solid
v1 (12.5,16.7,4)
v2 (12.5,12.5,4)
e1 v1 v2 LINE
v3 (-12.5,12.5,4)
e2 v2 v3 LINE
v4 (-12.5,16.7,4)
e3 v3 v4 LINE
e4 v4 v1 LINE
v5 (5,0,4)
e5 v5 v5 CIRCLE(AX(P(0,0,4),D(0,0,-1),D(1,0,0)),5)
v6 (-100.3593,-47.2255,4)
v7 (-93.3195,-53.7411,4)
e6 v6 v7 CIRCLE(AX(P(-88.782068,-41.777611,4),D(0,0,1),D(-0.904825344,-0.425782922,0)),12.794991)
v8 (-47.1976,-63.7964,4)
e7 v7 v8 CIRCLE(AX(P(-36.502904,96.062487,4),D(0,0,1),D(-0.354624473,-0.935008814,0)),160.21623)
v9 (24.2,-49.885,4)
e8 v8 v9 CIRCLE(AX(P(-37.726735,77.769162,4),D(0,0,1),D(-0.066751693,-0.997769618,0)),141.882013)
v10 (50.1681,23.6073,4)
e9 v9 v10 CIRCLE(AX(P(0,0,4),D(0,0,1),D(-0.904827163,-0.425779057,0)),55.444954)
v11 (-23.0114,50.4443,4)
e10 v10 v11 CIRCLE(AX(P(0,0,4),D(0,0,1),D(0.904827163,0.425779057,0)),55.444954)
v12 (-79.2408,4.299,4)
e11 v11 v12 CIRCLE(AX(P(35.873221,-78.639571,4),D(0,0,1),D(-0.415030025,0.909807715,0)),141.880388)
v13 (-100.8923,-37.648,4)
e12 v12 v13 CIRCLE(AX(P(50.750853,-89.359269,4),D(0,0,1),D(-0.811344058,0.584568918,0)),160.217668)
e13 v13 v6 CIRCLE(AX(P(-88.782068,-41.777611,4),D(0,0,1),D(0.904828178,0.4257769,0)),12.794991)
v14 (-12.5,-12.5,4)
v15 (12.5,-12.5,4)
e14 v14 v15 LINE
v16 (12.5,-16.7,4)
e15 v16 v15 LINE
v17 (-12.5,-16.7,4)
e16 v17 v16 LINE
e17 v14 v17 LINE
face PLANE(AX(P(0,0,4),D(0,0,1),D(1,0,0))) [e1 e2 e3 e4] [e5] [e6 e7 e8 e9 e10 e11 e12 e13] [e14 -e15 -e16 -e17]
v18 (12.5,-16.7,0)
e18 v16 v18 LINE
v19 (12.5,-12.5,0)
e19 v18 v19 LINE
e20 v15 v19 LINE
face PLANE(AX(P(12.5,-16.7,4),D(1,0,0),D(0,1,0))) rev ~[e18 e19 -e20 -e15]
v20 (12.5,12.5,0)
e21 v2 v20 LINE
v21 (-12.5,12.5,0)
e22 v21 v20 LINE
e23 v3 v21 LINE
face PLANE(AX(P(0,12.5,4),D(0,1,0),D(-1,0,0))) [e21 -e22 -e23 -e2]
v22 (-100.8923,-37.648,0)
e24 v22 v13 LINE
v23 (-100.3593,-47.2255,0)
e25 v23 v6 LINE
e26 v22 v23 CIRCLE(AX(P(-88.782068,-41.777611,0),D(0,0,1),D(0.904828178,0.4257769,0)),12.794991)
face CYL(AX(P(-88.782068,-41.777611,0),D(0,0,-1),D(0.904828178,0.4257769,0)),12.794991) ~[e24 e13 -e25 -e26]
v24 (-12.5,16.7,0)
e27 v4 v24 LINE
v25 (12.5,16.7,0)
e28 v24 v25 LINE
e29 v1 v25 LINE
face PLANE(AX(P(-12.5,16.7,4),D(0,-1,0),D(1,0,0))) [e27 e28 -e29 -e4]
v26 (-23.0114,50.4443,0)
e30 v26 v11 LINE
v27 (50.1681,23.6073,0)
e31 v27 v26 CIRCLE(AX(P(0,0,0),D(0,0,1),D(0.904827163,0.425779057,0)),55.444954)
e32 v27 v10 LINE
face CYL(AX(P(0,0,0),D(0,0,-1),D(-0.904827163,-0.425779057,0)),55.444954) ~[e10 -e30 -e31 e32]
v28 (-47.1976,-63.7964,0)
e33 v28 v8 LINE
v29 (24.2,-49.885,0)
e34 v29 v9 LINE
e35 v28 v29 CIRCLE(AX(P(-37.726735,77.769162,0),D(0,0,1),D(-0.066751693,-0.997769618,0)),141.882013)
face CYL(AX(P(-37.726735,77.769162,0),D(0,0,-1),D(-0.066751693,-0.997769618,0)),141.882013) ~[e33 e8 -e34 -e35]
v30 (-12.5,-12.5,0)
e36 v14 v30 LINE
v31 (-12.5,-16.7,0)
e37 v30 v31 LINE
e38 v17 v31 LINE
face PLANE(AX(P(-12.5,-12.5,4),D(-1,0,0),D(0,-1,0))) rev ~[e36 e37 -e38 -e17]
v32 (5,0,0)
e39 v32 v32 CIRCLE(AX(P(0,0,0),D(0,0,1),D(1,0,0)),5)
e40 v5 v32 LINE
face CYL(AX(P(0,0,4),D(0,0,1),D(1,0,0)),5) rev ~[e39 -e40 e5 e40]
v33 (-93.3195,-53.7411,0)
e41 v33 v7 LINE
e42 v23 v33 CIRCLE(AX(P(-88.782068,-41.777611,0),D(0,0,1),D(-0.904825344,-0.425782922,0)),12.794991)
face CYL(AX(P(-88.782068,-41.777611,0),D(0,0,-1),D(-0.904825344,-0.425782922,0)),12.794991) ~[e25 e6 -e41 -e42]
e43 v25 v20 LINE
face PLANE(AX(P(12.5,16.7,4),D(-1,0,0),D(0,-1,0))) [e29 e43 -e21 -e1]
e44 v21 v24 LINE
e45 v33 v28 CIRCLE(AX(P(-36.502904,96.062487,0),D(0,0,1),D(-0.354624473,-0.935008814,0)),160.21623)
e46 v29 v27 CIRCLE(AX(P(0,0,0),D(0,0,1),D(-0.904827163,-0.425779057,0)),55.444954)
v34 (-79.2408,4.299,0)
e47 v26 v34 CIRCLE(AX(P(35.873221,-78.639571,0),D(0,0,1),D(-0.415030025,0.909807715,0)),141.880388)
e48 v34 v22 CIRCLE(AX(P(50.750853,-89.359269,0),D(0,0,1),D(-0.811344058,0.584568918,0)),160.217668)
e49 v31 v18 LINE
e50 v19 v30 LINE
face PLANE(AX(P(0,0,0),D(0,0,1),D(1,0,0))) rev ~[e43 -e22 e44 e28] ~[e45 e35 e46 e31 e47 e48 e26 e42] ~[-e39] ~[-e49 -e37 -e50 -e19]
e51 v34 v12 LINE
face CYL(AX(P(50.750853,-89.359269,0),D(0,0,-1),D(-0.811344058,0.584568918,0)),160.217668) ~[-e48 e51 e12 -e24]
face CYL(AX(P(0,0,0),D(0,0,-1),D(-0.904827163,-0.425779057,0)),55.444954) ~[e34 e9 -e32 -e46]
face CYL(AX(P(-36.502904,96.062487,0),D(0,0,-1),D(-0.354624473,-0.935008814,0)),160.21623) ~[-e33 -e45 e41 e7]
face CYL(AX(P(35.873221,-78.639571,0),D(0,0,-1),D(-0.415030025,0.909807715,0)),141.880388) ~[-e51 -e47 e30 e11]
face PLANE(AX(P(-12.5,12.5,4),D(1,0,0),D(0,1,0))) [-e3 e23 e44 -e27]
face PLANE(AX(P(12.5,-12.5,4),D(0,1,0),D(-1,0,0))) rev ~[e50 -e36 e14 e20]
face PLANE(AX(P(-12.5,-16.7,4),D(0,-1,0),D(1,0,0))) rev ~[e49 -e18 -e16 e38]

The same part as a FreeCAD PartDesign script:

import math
import FreeCAD as App
import Part
import Sketcher

V = App.Vector

doc = App.newDocument("Part")
body = doc.addObject("PartDesign::Body", "Body")

sketch1 = body.newObject("Sketcher::SketchObject", "Sketch")
sketch1.AttachmentSupport = (doc.getObject("XY_Plane"), [""])
sketch1.MapMode = "FlatFace"
sketch1.addGeometry(Part.ArcOfCircle(Part.Circle(V(0, 0, 0), V(0, 0, 1), 55), math.radians(-64), math.radians(115)), False)
sketch1.addGeometry(Part.ArcOfCircle(Part.Circle(V(36, -79, 0), V(0, 0, 1), 142), math.radians(115), math.radians(144)), False)
sketch1.addGeometry(Part.ArcOfCircle(Part.Circle(V(51, -89, 0), V(0, 0, 1), 160), math.radians(144.23), math.radians(161.17)), False)
sketch1.addGeometry(Part.ArcOfCircle(Part.Circle(V(-89, -42, 0), V(0, 0, 1), 13), math.radians(161), math.radians(205)), False)
sketch1.addGeometry(Part.ArcOfCircle(Part.Circle(V(-89, -42, 0), V(0, 0, 1), 13), math.radians(-155), math.radians(-111)), False)
sketch1.addGeometry(Part.ArcOfCircle(Part.Circle(V(-37, 96, 0), V(0, 0, 1), 160), math.radians(-110.77), math.radians(-93.83)), False)
sketch1.addGeometry(Part.ArcOfCircle(Part.Circle(V(-38, 78, 0), V(0, 0, 1), 142), math.radians(-94), math.radians(-64)), False)
sketch1.addConstraint(Sketcher.Constraint("Tangent", 0, 2, 1, 1))
sketch1.addConstraint(Sketcher.Constraint("Tangent", 1, 2, 2, 1))
sketch1.addConstraint(Sketcher.Constraint("Tangent", 2, 2, 3, 1))
sketch1.addConstraint(Sketcher.Constraint("Tangent", 3, 2, 4, 1))
sketch1.addConstraint(Sketcher.Constraint("Tangent", 4, 2, 5, 1))
sketch1.addConstraint(Sketcher.Constraint("Tangent", 5, 2, 6, 1))
sketch1.addConstraint(Sketcher.Constraint("Tangent", 6, 2, 0, 1))
sketch1.addConstraint(Sketcher.Constraint("Coincident", 0, 3, -1, 1))
sketch1.addConstraint(Sketcher.Constraint("Equal", 3, 4))
sketch1.addConstraint(Sketcher.Constraint("Radius", 0, 55.445))
sketch1.addConstraint(Sketcher.Constraint("Radius", 3, 12.795))
sketch1.addConstraint(Sketcher.Constraint("DistanceX", -1, 1, 6, 2, 24.2))
sketch1.addConstraint(Sketcher.Constraint("Radius", 1, 141.8804))
sketch1.addConstraint(Sketcher.Constraint("Radius", 2, 160.2177))
sketch1.addConstraint(Sketcher.Constraint("Radius", 5, 160.2162))
sketch1.addConstraint(Sketcher.Constraint("Radius", 6, 141.8815))
sketch1.addConstraint(Sketcher.Constraint("DistanceX", 6, 3, 1, 3, 73.6))
sketch1.addConstraint(Sketcher.Constraint("DistanceX", 3, 2, 4, 2, 7.04))
sketch1.addConstraint(Sketcher.Constraint("DistanceX", 3, 3, -1, 1, 88.782))
sketch1.addConstraint(Sketcher.Constraint("DistanceX", 5, 3, -1, 1, 36.503))
pad1 = body.newObject("PartDesign::Pad", "Pad")
pad1.Profile = sketch1
pad1.Length = 4

sketch2 = body.newObject("Sketcher::SketchObject", "Sketch001")
sketch2.AttachmentSupport = (doc.getObject("XY_Plane"), [""])
sketch2.MapMode = "FlatFace"
sketch2.AttachmentOffset = App.Placement(V(0, 0, 4), App.Rotation())
sketch2.addGeometry(Part.Circle(V(0, 0, 0), V(0, 0, 1), 5), False)
sketch2.addGeometry(Part.LineSegment(V(-12.5, 12.5, 0), V(12.5, 12.5, 0)), False)
sketch2.addGeometry(Part.LineSegment(V(12.5, 12.5, 0), V(12.5, 16.7, 0)), False)
sketch2.addGeometry(Part.LineSegment(V(12.5, 16.7, 0), V(-12.5, 16.7, 0)), False)
sketch2.addGeometry(Part.LineSegment(V(-12.5, 16.7, 0), V(-12.5, 12.5, 0)), False)
sketch2.addGeometry(Part.LineSegment(V(12.5, -12.5, 0), V(-12.5, -12.5, 0)), False)
sketch2.addGeometry(Part.LineSegment(V(-12.5, -12.5, 0), V(-12.5, -16.7, 0)), False)
sketch2.addGeometry(Part.LineSegment(V(-12.5, -16.7, 0), V(12.5, -16.7, 0)), False)
sketch2.addGeometry(Part.LineSegment(V(12.5, -16.7, 0), V(12.5, -12.5, 0)), False)
sketch2.addConstraint(Sketcher.Constraint("Coincident", 1, 2, 2, 1))
sketch2.addConstraint(Sketcher.Constraint("Coincident", 2, 2, 3, 1))
sketch2.addConstraint(Sketcher.Constraint("Coincident", 3, 2, 4, 1))
sketch2.addConstraint(Sketcher.Constraint("Coincident", 4, 2, 1, 1))
sketch2.addConstraint(Sketcher.Constraint("Coincident", 5, 2, 6, 1))
sketch2.addConstraint(Sketcher.Constraint("Coincident", 6, 2, 7, 1))
sketch2.addConstraint(Sketcher.Constraint("Coincident", 7, 2, 8, 1))
sketch2.addConstraint(Sketcher.Constraint("Coincident", 8, 2, 5, 1))
sketch2.addConstraint(Sketcher.Constraint("Horizontal", 1))
sketch2.addConstraint(Sketcher.Constraint("Vertical", 2))
sketch2.addConstraint(Sketcher.Constraint("Horizontal", 3))
sketch2.addConstraint(Sketcher.Constraint("Vertical", 4))
sketch2.addConstraint(Sketcher.Constraint("Horizontal", 5))
sketch2.addConstraint(Sketcher.Constraint("Vertical", 6))
sketch2.addConstraint(Sketcher.Constraint("Horizontal", 7))
sketch2.addConstraint(Sketcher.Constraint("Vertical", 8))
sketch2.addConstraint(Sketcher.Constraint("Coincident", 0, 3, -1, 1))
sketch2.addConstraint(Sketcher.Constraint("Symmetric", 1, 2, 5, 2, -1, 1))
sketch2.addConstraint(Sketcher.Constraint("Symmetric", 3, 2, 7, 2, -1, 1))
sketch2.addConstraint(Sketcher.Constraint("Vertical", 4, 2, 5, 2))
sketch2.addConstraint(Sketcher.Constraint("Diameter", 0, 10.0))
sketch2.addConstraint(Sketcher.Constraint("DistanceX", 1, 1, 1, 2, 25.0))
sketch2.addConstraint(Sketcher.Constraint("DistanceY", 2, 1, 2, 2, 4.2))
sketch2.addConstraint(Sketcher.Constraint("DistanceY", 5, 2, 4, 2, 25.0))
pocket1 = body.newObject("PartDesign::Pocket", "Pocket")
pocket1.Profile = sketch2
pocket1.Length = 4

doc.recompute()
